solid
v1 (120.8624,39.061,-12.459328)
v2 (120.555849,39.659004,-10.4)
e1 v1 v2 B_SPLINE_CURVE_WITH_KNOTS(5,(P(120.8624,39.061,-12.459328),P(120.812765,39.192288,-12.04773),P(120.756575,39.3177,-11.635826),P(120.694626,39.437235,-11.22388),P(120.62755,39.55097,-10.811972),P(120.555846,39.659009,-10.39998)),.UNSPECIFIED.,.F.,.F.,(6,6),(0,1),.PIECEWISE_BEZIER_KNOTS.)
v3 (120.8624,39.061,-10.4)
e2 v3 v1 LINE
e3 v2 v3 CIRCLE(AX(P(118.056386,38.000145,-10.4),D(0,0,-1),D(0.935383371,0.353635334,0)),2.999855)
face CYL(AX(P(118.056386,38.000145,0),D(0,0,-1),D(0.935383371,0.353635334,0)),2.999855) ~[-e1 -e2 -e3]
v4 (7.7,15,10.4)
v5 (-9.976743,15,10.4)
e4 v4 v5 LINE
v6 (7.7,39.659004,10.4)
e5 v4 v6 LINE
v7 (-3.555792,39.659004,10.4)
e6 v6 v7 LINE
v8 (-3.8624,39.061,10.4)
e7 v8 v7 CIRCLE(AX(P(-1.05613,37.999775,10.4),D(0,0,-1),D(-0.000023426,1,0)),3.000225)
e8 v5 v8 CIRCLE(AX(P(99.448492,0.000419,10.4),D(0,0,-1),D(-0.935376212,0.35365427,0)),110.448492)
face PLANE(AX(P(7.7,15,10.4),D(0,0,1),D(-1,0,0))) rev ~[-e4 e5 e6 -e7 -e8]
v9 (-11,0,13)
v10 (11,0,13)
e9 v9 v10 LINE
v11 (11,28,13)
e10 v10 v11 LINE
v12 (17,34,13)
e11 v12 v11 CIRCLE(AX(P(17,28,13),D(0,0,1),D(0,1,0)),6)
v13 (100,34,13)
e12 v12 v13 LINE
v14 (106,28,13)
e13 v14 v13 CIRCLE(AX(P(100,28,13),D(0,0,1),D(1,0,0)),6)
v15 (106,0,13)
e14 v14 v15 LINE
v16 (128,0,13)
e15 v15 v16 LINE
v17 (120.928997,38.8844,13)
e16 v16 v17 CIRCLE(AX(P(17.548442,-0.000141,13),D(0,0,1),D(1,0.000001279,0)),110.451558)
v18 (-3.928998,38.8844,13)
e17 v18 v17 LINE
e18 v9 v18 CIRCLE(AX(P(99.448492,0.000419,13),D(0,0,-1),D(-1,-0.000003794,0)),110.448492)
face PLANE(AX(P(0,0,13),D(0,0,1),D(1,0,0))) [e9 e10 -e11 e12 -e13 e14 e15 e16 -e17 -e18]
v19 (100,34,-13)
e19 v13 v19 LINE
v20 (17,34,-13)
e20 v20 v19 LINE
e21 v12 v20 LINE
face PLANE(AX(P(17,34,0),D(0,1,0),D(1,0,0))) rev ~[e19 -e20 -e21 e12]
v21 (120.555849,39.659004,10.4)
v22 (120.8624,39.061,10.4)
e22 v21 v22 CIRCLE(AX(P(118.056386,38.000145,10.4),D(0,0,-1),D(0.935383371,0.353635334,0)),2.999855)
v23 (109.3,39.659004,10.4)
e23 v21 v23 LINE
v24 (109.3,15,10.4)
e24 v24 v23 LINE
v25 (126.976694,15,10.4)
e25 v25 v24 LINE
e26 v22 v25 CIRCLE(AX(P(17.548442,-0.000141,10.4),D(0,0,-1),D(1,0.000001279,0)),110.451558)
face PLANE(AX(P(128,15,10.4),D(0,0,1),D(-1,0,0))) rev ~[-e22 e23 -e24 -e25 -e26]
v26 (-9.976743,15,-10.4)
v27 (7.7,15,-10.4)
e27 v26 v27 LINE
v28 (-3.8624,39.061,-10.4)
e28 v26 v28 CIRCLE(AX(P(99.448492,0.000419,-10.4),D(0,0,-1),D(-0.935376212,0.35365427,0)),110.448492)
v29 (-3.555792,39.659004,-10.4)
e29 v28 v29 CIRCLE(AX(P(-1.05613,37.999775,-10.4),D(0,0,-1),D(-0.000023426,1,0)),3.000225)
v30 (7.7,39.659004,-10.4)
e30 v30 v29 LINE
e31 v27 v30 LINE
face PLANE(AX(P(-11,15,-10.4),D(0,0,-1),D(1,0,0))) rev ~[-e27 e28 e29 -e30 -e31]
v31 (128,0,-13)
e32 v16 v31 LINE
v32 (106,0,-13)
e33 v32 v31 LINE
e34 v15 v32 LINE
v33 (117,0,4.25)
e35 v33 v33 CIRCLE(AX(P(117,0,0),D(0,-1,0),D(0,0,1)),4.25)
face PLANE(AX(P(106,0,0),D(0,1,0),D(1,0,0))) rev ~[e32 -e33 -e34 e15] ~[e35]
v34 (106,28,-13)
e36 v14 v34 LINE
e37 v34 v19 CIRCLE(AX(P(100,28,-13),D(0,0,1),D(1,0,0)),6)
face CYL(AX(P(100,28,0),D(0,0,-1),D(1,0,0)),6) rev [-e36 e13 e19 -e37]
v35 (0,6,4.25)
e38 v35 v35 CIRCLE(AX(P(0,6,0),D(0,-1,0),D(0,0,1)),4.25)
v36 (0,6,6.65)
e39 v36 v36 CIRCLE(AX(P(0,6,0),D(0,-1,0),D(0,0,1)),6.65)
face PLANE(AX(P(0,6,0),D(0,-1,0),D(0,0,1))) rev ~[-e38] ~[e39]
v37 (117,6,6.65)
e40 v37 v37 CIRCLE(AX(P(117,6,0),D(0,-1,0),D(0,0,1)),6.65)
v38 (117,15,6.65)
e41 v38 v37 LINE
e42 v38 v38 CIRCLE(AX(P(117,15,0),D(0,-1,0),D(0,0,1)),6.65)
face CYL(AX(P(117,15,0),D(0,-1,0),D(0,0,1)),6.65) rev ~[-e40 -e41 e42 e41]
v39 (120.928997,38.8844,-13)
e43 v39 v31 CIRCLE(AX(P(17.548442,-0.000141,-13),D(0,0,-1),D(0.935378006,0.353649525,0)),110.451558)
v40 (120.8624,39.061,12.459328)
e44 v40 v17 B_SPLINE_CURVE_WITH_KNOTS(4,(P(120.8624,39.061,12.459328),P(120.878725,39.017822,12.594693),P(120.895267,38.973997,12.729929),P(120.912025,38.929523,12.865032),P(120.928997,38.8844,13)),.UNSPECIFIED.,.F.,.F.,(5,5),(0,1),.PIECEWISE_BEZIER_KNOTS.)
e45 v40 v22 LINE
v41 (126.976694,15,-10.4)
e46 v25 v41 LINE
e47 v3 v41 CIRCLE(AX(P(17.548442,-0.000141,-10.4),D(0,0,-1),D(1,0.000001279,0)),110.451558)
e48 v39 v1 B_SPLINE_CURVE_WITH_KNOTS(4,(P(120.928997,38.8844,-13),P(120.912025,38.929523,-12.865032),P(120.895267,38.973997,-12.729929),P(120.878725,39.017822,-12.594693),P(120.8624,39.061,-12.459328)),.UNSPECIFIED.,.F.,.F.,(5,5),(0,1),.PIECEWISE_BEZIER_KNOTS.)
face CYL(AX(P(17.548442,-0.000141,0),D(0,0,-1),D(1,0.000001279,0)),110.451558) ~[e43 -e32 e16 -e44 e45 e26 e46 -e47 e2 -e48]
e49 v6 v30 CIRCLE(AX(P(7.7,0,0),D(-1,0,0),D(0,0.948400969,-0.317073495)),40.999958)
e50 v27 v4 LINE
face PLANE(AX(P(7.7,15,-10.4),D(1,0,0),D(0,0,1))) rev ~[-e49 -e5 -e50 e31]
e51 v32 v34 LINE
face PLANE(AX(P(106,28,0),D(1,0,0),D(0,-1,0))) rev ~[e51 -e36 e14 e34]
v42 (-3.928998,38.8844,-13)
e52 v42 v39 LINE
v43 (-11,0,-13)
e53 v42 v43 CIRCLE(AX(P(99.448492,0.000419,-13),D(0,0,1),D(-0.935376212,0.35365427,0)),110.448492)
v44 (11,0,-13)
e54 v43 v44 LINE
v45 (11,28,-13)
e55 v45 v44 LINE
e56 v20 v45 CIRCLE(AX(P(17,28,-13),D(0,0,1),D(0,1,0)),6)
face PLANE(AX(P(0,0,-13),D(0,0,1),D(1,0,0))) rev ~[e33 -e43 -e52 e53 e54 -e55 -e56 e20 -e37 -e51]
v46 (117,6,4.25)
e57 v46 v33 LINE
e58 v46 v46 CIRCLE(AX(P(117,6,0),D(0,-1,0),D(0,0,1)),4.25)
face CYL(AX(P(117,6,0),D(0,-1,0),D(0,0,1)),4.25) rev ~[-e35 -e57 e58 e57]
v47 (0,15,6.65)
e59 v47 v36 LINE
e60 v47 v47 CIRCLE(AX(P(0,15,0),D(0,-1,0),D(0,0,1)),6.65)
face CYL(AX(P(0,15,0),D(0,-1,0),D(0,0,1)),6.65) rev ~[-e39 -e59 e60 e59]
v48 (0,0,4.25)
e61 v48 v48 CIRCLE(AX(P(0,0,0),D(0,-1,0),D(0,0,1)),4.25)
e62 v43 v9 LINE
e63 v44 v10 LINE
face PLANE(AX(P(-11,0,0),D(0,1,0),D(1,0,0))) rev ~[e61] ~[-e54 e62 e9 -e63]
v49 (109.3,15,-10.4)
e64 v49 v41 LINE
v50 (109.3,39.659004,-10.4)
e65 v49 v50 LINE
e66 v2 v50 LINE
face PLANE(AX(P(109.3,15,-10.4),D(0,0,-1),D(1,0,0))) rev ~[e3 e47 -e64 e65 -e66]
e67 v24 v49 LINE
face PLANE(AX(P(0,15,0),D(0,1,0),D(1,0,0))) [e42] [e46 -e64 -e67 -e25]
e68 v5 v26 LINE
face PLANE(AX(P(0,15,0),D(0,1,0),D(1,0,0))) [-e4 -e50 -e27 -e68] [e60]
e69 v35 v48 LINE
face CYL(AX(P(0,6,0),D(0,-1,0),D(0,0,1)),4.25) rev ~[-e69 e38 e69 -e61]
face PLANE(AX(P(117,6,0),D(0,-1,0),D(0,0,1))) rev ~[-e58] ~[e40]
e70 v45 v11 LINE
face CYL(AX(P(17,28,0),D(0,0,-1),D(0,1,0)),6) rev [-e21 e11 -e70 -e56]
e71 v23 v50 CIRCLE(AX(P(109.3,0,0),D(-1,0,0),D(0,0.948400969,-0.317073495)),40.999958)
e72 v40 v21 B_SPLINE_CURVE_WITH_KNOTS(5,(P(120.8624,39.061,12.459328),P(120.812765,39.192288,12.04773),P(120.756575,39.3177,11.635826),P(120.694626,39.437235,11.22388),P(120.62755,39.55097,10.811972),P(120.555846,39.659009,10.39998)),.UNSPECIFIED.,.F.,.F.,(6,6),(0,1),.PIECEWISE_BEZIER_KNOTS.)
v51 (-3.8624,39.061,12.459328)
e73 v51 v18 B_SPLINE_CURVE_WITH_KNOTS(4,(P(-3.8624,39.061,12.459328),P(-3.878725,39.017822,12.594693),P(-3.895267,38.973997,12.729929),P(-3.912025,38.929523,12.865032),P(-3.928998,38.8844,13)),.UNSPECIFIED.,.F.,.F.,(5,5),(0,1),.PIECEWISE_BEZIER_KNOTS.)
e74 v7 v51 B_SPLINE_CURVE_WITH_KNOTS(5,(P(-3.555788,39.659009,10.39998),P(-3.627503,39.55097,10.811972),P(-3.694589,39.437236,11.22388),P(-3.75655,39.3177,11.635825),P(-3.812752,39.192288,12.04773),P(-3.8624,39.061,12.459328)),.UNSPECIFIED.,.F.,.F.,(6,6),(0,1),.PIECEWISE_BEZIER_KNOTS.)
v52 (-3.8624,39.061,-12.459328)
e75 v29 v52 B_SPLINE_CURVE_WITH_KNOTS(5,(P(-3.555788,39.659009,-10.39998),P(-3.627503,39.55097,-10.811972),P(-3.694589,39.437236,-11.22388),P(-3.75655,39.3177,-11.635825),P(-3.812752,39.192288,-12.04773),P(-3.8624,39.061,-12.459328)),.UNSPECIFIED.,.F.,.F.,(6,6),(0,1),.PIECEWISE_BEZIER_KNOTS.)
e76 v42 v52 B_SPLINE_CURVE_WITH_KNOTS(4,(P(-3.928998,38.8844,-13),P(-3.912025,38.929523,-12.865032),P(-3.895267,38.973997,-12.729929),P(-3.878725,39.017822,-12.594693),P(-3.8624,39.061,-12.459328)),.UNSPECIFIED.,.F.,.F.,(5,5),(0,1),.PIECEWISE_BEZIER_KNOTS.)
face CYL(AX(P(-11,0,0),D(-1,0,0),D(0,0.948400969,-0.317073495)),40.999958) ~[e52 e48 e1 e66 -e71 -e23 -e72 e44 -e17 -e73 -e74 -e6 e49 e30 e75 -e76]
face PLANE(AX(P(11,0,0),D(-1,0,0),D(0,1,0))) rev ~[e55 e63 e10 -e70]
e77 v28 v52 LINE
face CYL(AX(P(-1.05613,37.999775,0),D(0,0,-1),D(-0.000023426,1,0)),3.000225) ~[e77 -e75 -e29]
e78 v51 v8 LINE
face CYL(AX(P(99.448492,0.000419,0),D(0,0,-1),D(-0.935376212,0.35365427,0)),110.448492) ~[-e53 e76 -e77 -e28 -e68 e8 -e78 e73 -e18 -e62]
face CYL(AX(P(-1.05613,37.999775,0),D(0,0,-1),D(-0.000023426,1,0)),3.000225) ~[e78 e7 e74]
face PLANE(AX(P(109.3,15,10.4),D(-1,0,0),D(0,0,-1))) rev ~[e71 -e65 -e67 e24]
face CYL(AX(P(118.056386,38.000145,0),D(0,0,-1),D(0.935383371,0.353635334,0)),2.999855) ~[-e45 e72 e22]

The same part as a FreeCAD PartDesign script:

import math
import FreeCAD as App
import Part
import Sketcher

doc = App.newDocument("Part")
body = doc.addObject("PartDesign::Body", "Body")

# Sketch on XY plane
sketch1 = doc.addObject("Sketcher::SketchObject", "Sketch")
body.addObject(sketch1)
sketch1.AttachmentSupport = (doc.XY_Plane, [""])
sketch1.MapMode = "FlatFace"
sketch1.addGeometry(Part.ArcOfCircle(Part.Circle(App.Vector(99.4, 0, 0), App.Vector(0, 0, 1), 110.4), math.radians(159), math.radians(180)), False)
sketch1.addGeometry(Part.LineSegment(App.Vector(-11, 0, 0), App.Vector(11, 0, 0)), False)
sketch1.addGeometry(Part.LineSegment(App.Vector(11, 0, 0), App.Vector(11, 28, 0)), False)
sketch1.addGeometry(Part.ArcOfCircle(Part.Circle(App.Vector(17, 28, 0), App.Vector(0, 0, 1), 6), math.radians(90), math.radians(180)), False)
sketch1.addGeometry(Part.LineSegment(App.Vector(17, 34, 0), App.Vector(100, 34, 0)), False)
sketch1.addGeometry(Part.ArcOfCircle(Part.Circle(App.Vector(100, 28, 0), App.Vector(0, 0, 1), 6), math.radians(0), math.radians(90)), False)
sketch1.addGeometry(Part.LineSegment(App.Vector(106, 28, 0), App.Vector(106, 0, 0)), False)
sketch1.addGeometry(Part.LineSegment(App.Vector(106, 0, 0), App.Vector(128, 0, 0)), False)
sketch1.addGeometry(Part.ArcOfCircle(Part.Circle(App.Vector(17.5, 0, 0), App.Vector(0, 0, 1), 110.5), math.radians(0), math.radians(21)), False)
sketch1.addGeometry(Part.ArcOfCircle(Part.Circle(App.Vector(118.1, 38, 0), App.Vector(0, 0, 1), 3), math.radians(21), math.radians(90)), False)
sketch1.addGeometry(Part.LineSegment(App.Vector(118.1, 41, 0), App.Vector(-1.1, 41, 0)), False)
sketch1.addGeometry(Part.ArcOfCircle(Part.Circle(App.Vector(-1.1, 38, 0), App.Vector(0, 0, 1), 3), math.radians(90), math.radians(159)), False)
sketch1.addConstraint(Sketcher.Constraint("Coincident", 0, 2, 1, 1))
sketch1.addConstraint(Sketcher.Constraint("Coincident", 1, 2, 2, 1))
sketch1.addConstraint(Sketcher.Constraint("Tangent", 2, 2, 3, 2))
sketch1.addConstraint(Sketcher.Constraint("Tangent", 3, 1, 4, 1))
sketch1.addConstraint(Sketcher.Constraint("Tangent", 4, 2, 5, 2))
sketch1.addConstraint(Sketcher.Constraint("Tangent", 5, 1, 6, 1))
sketch1.addConstraint(Sketcher.Constraint("Coincident", 6, 2, 7, 1))
sketch1.addConstraint(Sketcher.Constraint("Coincident", 7, 2, 8, 1))
sketch1.addConstraint(Sketcher.Constraint("Tangent", 8, 2, 9, 1))
sketch1.addConstraint(Sketcher.Constraint("Tangent", 9, 2, 10, 1))
sketch1.addConstraint(Sketcher.Constraint("Tangent", 10, 2, 11, 1))
sketch1.addConstraint(Sketcher.Constraint("Tangent", 11, 2, 0, 1))
sketch1.addConstraint(Sketcher.Constraint("Horizontal", 1))
sketch1.addConstraint(Sketcher.Constraint("Vertical", 2))
sketch1.addConstraint(Sketcher.Constraint("Horizontal", 4))
sketch1.addConstraint(Sketcher.Constraint("Vertical", 6))
sketch1.addConstraint(Sketcher.Constraint("Horizontal", 7))
sketch1.addConstraint(Sketcher.Constraint("Horizontal", 10))
sketch1.addConstraint(Sketcher.Constraint("Equal", 3, 5))
sketch1.addConstraint(Sketcher.Constraint("Equal", 9, 11))
sketch1.addConstraint(Sketcher.Constraint("Symmetric", 0, 2, 1, 2, -1, 1))
sketch1.addConstraint(Sketcher.Constraint("PointOnObject", 8, 3, -1))
sketch1.addConstraint(Sketcher.Constraint("PointOnObject", 6, 2, -1))
sketch1.addConstraint(Sketcher.Constraint("Equal", 1, 7))
sketch1.addConstraint(Sketcher.Constraint("Radius", 3, 6.0))
sketch1.addConstraint(Sketcher.Constraint("Radius", 9, 3.0))
sketch1.addConstraint(Sketcher.Constraint("DistanceX", 1, 1, 1, 2, 22.0))
sketch1.addConstraint(Sketcher.Constraint("DistanceX", 4, 1, 4, 2, 83.0))
sketch1.addConstraint(Sketcher.Constraint("DistanceY", 2, 1, 2, 2, 28.0))
sketch1.addConstraint(Sketcher.Constraint("DistanceY", -1, 1, 9, 3, 38.0))
sketch1.addConstraint(Sketcher.Constraint("Radius", 0, 110.4485))
sketch1.addConstraint(Sketcher.Constraint("Radius", 8, 110.4516))
sketch1.addConstraint(Sketcher.Constraint("DistanceX", 10, 2, 10, 1, 119.1124))
pad1 = doc.addObject("PartDesign::Pad", "Pad")
body.addObject(pad1)
pad1.Profile = sketch1
pad1.Length = 26
pad1.Midplane = True

# Sketch on XZ plane
sketch2 = doc.addObject("Sketcher::SketchObject", "Sketch001")
body.addObject(sketch2)
sketch2.AttachmentSupport = (doc.XZ_Plane, [""])
sketch2.MapMode = "FlatFace"
sketch2.AttachmentOffset = App.Placement(App.Vector(0, 0, -15), App.Rotation())
sketch2.addGeometry(Part.LineSegment(App.Vector(-58.5, -26, 0), App.Vector(-58.5, 26, 0)), False)
sketch2.addGeometry(Part.LineSegment(App.Vector(-58.5, 26, 0), App.Vector(175.5, 26, 0)), False)
sketch2.addGeometry(Part.LineSegment(App.Vector(175.5, 26, 0), App.Vector(175.5, -26, 0)), False)
sketch2.addGeometry(Part.LineSegment(App.Vector(175.5, -26, 0), App.Vector(-58.5, -26, 0)), False)
sketch2.addGeometry(Part.LineSegment(App.Vector(7.7, -10.4, 0), App.Vector(-11, -10.4, 0)), False)
sketch2.addGeometry(Part.LineSegment(App.Vector(-11, -10.4, 0), App.Vector(-11, -13, 0)), False)
sketch2.addGeometry(Part.LineSegment(App.Vector(-11, -13, 0), App.Vector(128, -13, 0)), False)
sketch2.addGeometry(Part.LineSegment(App.Vector(128, -13, 0), App.Vector(128, -10.4, 0)), False)
sketch2.addGeometry(Part.LineSegment(App.Vector(128, -10.4, 0), App.Vector(109.3, -10.4, 0)), False)
sketch2.addGeometry(Part.LineSegment(App.Vector(109.3, -10.4, 0), App.Vector(109.3, 10.4, 0)), False)
sketch2.addGeometry(Part.LineSegment(App.Vector(109.3, 10.4, 0), App.Vector(128, 10.4, 0)), False)
sketch2.addGeometry(Part.LineSegment(App.Vector(128, 10.4, 0), App.Vector(128, 13, 0)), False)
sketch2.addGeometry(Part.LineSegment(App.Vector(128, 13, 0), App.Vector(-11, 13, 0)), False)
sketch2.addGeometry(Part.LineSegment(App.Vector(-11, 13, 0), App.Vector(-11, 10.4, 0)), False)
sketch2.addGeometry(Part.LineSegment(App.Vector(-11, 10.4, 0), App.Vector(7.7, 10.4, 0)), False)
sketch2.addGeometry(Part.LineSegment(App.Vector(7.7, 10.4, 0), App.Vector(7.7, -10.4, 0)), False)
sketch2.addConstraint(Sketcher.Constraint("Coincident", 0, 2, 1, 1))
sketch2.addConstraint(Sketcher.Constraint("Coincident", 1, 2, 2, 1))
sketch2.addConstraint(Sketcher.Constraint("Coincident", 2, 2, 3, 1))
sketch2.addConstraint(Sketcher.Constraint("Coincident", 3, 2, 0, 1))
sketch2.addConstraint(Sketcher.Constraint("Coincident", 4, 2, 5, 1))
sketch2.addConstraint(Sketcher.Constraint("Coincident", 5, 2, 6, 1))
sketch2.addConstraint(Sketcher.Constraint("Coincident", 6, 2, 7, 1))
sketch2.addConstraint(Sketcher.Constraint("Coincident", 7, 2, 8, 1))
sketch2.addConstraint(Sketcher.Constraint("Coincident", 8, 2, 9, 1))
sketch2.addConstraint(Sketcher.Constraint("Coincident", 9, 2, 10, 1))
sketch2.addConstraint(Sketcher.Constraint("Coincident", 10, 2, 11, 1))
sketch2.addConstraint(Sketcher.Constraint("Coincident", 11, 2, 12, 1))
sketch2.addConstraint(Sketcher.Constraint("Coincident", 12, 2, 13, 1))
sketch2.addConstraint(Sketcher.Constraint("Coincident", 13, 2, 14, 1))
sketch2.addConstraint(Sketcher.Constraint("Coincident", 14, 2, 15, 1))
sketch2.addConstraint(Sketcher.Constraint("Coincident", 15, 2, 4, 1))
sketch2.addConstraint(Sketcher.Constraint("Vertical", 0))
sketch2.addConstraint(Sketcher.Constraint("Horizontal", 1))
sketch2.addConstraint(Sketcher.Constraint("Vertical", 2))
sketch2.addConstraint(Sketcher.Constraint("Horizontal", 3))
sketch2.addConstraint(Sketcher.Constraint("Horizontal", 4))
sketch2.addConstraint(Sketcher.Constraint("Vertical", 5))
sketch2.addConstraint(Sketcher.Constraint("Horizontal", 6))
sketch2.addConstraint(Sketcher.Constraint("Vertical", 7))
sketch2.addConstraint(Sketcher.Constraint("Horizontal", 8))
sketch2.addConstraint(Sketcher.Constraint("Vertical", 9))
sketch2.addConstraint(Sketcher.Constraint("Horizontal", 10))
sketch2.addConstraint(Sketcher.Constraint("Vertical", 11))
sketch2.addConstraint(Sketcher.Constraint("Horizontal", 12))
sketch2.addConstraint(Sketcher.Constraint("Vertical", 13))
sketch2.addConstraint(Sketcher.Constraint("Horizontal", 14))
sketch2.addConstraint(Sketcher.Constraint("Vertical", 15))
sketch2.addConstraint(Sketcher.Constraint("Symmetric", 7, 2, 10, 2, -1))
sketch2.addConstraint(Sketcher.Constraint("Symmetric", 5, 2, 12, 2, -1))
sketch2.addConstraint(Sketcher.Constraint("Horizontal", 4, 2, 7, 2))
sketch2.addConstraint(Sketcher.Constraint("Horizontal", 10, 2, 13, 2))
sketch2.addConstraint(Sketcher.Constraint("Equal", 4, 8))
sketch2.addConstraint(Sketcher.Constraint("DistanceX", 1, 1, 1, 2, 234.0))
sketch2.addConstraint(Sketcher.Constraint("DistanceX", 6, 1, 6, 2, 139.0))
sketch2.addConstraint(Sketcher.Constraint("DistanceY", 0, 1, 0, 2, 52.0))
sketch2.addConstraint(Sketcher.Constraint("DistanceX", 4, 2, 4, 1, 18.7))
sketch2.addConstraint(Sketcher.Constraint("DistanceY", 5, 2, 5, 1, 2.6))
sketch2.addConstraint(Sketcher.Constraint("DistanceY", 9, 1, 9, 2, 20.8))
sketch2.addConstraint(Sketcher.Constraint("DistanceY", -1, 1, 0, 2, 26.0))
sketch2.addConstraint(Sketcher.Constraint("DistanceX", 4, 2, -1, 1, 11.0))
sketch2.addConstraint(Sketcher.Constraint("DistanceX", 0, 2, -1, 1, 58.5))
pocket1 = doc.addObject("PartDesign::Pocket", "Pocket")
body.addObject(pocket1)
pocket1.Profile = sketch2
pocket1.Length = 58.5

# Sketch on XZ plane
sketch3 = doc.addObject("Sketcher::SketchObject", "Sketch002")
body.addObject(sketch3)
sketch3.AttachmentSupport = (doc.XZ_Plane, [""])
sketch3.MapMode = "FlatFace"
sketch3.AttachmentOffset = App.Placement(App.Vector(0, 0, -15), App.Rotation())
sketch3.addGeometry(Part.Circle(App.Vector(0, 0, 0), App.Vector(0, 0, 1), 4.2), False)
sketch3.addConstraint(Sketcher.Constraint("Coincident", 0, 3, -1, 1))
sketch3.addConstraint(Sketcher.Constraint("Diameter", 0, 8.5))
doc.recompute()
hole = doc.addObject("PartDesign::Hole", "Hole")
body.addObject(hole)
hole.Profile = sketch3
hole.ThreadType = "None"
hole.Diameter = 8.5
hole.DepthType = "Dimension"
hole.Depth = 15
hole.DrillPoint = "Flat"
hole.HoleCutType = "Counterbore"
hole.HoleCutDiameter = 13.3
hole.HoleCutDepth = 9
hole.Reversed = True

# Sketch on XZ plane
sketch4 = doc.addObject("Sketcher::SketchObject", "Sketch003")
body.addObject(sketch4)
sketch4.AttachmentSupport = (doc.XZ_Plane, [""])
sketch4.MapMode = "FlatFace"
sketch4.AttachmentOffset = App.Placement(App.Vector(0, 0, -15), App.Rotation())
sketch4.addGeometry(Part.Circle(App.Vector(117, 0, 0), App.Vector(0, 0, 1), 4.2), False)
sketch4.addConstraint(Sketcher.Constraint("PointOnObject", 0, 3, -1))
sketch4.addConstraint(Sketcher.Constraint("Diameter", 0, 8.5))
sketch4.addConstraint(Sketcher.Constraint("DistanceX", -1, 1, 0, 3, 117.0))
doc.recompute()
hole2 = doc.addObject("PartDesign::Hole", "Hole001")
body.addObject(hole2)
hole2.Profile = sketch4
hole2.ThreadType = "None"
hole2.Diameter = 8.5
hole2.DepthType = "Dimension"
hole2.Depth = 15
hole2.DrillPoint = "Flat"
hole2.HoleCutType = "Counterbore"
hole2.HoleCutDiameter = 13.3
hole2.HoleCutDepth = 9
hole2.Reversed = True

# Sketch on YZ plane
sketch5 = doc.addObject("Sketcher::SketchObject", "Sketch004")
body.addObject(sketch5)
sketch5.AttachmentSupport = (doc.YZ_Plane, [""])
sketch5.MapMode = "FlatFace"
sketch5.AttachmentOffset = App.Placement(App.Vector(0, 0, -11), App.Rotation())
sketch5.addGeometry(Part.LineSegment(App.Vector(46, -13, 0), App.Vector(46, 13, 0)), False)
sketch5.addGeometry(Part.LineSegment(App.Vector(46, 13, 0), App.Vector(39, 13, 0)), False)
sketch5.addGeometry(Part.ArcOfCircle(Part.Circle(App.Vector(0, 0, 0), App.Vector(0, 0, 1), 41), math.radians(-18), math.radians(18)), False)
sketch5.addGeometry(Part.LineSegment(App.Vector(39, -13, 0), App.Vector(46, -13, 0)), False)
sketch5.addConstraint(Sketcher.Constraint("Coincident", 0, 2, 1, 1))
sketch5.addConstraint(Sketcher.Constraint("Coincident", 1, 2, 2, 2))
sketch5.addConstraint(Sketcher.Constraint("Coincident", 2, 1, 3, 1))
sketch5.addConstraint(Sketcher.Constraint("Coincident", 3, 2, 0, 1))
sketch5.addConstraint(Sketcher.Constraint("Vertical", 0))
sketch5.addConstraint(Sketcher.Constraint("Horizontal", 1))
sketch5.addConstraint(Sketcher.Constraint("Horizontal", 3))
sketch5.addConstraint(Sketcher.Constraint("Coincident", 2, 3, -1, 1))
sketch5.addConstraint(Sketcher.Constraint("Vertical", 1, 2, 2, 1))
sketch5.addConstraint(Sketcher.Constraint("Radius", 2, 41.0))
sketch5.addConstraint(Sketcher.Constraint("DistanceY", 0, 1, 0, 2, 26.0))
sketch5.addConstraint(Sketcher.Constraint("DistanceX", -1, 1, 0, 2, 46.0))
pocket2 = doc.addObject("PartDesign::Pocket", "Pocket001")
body.addObject(pocket2)
pocket2.Profile = sketch5
pocket2.Length = 139
pocket2.Reversed = True

doc.recompute()
